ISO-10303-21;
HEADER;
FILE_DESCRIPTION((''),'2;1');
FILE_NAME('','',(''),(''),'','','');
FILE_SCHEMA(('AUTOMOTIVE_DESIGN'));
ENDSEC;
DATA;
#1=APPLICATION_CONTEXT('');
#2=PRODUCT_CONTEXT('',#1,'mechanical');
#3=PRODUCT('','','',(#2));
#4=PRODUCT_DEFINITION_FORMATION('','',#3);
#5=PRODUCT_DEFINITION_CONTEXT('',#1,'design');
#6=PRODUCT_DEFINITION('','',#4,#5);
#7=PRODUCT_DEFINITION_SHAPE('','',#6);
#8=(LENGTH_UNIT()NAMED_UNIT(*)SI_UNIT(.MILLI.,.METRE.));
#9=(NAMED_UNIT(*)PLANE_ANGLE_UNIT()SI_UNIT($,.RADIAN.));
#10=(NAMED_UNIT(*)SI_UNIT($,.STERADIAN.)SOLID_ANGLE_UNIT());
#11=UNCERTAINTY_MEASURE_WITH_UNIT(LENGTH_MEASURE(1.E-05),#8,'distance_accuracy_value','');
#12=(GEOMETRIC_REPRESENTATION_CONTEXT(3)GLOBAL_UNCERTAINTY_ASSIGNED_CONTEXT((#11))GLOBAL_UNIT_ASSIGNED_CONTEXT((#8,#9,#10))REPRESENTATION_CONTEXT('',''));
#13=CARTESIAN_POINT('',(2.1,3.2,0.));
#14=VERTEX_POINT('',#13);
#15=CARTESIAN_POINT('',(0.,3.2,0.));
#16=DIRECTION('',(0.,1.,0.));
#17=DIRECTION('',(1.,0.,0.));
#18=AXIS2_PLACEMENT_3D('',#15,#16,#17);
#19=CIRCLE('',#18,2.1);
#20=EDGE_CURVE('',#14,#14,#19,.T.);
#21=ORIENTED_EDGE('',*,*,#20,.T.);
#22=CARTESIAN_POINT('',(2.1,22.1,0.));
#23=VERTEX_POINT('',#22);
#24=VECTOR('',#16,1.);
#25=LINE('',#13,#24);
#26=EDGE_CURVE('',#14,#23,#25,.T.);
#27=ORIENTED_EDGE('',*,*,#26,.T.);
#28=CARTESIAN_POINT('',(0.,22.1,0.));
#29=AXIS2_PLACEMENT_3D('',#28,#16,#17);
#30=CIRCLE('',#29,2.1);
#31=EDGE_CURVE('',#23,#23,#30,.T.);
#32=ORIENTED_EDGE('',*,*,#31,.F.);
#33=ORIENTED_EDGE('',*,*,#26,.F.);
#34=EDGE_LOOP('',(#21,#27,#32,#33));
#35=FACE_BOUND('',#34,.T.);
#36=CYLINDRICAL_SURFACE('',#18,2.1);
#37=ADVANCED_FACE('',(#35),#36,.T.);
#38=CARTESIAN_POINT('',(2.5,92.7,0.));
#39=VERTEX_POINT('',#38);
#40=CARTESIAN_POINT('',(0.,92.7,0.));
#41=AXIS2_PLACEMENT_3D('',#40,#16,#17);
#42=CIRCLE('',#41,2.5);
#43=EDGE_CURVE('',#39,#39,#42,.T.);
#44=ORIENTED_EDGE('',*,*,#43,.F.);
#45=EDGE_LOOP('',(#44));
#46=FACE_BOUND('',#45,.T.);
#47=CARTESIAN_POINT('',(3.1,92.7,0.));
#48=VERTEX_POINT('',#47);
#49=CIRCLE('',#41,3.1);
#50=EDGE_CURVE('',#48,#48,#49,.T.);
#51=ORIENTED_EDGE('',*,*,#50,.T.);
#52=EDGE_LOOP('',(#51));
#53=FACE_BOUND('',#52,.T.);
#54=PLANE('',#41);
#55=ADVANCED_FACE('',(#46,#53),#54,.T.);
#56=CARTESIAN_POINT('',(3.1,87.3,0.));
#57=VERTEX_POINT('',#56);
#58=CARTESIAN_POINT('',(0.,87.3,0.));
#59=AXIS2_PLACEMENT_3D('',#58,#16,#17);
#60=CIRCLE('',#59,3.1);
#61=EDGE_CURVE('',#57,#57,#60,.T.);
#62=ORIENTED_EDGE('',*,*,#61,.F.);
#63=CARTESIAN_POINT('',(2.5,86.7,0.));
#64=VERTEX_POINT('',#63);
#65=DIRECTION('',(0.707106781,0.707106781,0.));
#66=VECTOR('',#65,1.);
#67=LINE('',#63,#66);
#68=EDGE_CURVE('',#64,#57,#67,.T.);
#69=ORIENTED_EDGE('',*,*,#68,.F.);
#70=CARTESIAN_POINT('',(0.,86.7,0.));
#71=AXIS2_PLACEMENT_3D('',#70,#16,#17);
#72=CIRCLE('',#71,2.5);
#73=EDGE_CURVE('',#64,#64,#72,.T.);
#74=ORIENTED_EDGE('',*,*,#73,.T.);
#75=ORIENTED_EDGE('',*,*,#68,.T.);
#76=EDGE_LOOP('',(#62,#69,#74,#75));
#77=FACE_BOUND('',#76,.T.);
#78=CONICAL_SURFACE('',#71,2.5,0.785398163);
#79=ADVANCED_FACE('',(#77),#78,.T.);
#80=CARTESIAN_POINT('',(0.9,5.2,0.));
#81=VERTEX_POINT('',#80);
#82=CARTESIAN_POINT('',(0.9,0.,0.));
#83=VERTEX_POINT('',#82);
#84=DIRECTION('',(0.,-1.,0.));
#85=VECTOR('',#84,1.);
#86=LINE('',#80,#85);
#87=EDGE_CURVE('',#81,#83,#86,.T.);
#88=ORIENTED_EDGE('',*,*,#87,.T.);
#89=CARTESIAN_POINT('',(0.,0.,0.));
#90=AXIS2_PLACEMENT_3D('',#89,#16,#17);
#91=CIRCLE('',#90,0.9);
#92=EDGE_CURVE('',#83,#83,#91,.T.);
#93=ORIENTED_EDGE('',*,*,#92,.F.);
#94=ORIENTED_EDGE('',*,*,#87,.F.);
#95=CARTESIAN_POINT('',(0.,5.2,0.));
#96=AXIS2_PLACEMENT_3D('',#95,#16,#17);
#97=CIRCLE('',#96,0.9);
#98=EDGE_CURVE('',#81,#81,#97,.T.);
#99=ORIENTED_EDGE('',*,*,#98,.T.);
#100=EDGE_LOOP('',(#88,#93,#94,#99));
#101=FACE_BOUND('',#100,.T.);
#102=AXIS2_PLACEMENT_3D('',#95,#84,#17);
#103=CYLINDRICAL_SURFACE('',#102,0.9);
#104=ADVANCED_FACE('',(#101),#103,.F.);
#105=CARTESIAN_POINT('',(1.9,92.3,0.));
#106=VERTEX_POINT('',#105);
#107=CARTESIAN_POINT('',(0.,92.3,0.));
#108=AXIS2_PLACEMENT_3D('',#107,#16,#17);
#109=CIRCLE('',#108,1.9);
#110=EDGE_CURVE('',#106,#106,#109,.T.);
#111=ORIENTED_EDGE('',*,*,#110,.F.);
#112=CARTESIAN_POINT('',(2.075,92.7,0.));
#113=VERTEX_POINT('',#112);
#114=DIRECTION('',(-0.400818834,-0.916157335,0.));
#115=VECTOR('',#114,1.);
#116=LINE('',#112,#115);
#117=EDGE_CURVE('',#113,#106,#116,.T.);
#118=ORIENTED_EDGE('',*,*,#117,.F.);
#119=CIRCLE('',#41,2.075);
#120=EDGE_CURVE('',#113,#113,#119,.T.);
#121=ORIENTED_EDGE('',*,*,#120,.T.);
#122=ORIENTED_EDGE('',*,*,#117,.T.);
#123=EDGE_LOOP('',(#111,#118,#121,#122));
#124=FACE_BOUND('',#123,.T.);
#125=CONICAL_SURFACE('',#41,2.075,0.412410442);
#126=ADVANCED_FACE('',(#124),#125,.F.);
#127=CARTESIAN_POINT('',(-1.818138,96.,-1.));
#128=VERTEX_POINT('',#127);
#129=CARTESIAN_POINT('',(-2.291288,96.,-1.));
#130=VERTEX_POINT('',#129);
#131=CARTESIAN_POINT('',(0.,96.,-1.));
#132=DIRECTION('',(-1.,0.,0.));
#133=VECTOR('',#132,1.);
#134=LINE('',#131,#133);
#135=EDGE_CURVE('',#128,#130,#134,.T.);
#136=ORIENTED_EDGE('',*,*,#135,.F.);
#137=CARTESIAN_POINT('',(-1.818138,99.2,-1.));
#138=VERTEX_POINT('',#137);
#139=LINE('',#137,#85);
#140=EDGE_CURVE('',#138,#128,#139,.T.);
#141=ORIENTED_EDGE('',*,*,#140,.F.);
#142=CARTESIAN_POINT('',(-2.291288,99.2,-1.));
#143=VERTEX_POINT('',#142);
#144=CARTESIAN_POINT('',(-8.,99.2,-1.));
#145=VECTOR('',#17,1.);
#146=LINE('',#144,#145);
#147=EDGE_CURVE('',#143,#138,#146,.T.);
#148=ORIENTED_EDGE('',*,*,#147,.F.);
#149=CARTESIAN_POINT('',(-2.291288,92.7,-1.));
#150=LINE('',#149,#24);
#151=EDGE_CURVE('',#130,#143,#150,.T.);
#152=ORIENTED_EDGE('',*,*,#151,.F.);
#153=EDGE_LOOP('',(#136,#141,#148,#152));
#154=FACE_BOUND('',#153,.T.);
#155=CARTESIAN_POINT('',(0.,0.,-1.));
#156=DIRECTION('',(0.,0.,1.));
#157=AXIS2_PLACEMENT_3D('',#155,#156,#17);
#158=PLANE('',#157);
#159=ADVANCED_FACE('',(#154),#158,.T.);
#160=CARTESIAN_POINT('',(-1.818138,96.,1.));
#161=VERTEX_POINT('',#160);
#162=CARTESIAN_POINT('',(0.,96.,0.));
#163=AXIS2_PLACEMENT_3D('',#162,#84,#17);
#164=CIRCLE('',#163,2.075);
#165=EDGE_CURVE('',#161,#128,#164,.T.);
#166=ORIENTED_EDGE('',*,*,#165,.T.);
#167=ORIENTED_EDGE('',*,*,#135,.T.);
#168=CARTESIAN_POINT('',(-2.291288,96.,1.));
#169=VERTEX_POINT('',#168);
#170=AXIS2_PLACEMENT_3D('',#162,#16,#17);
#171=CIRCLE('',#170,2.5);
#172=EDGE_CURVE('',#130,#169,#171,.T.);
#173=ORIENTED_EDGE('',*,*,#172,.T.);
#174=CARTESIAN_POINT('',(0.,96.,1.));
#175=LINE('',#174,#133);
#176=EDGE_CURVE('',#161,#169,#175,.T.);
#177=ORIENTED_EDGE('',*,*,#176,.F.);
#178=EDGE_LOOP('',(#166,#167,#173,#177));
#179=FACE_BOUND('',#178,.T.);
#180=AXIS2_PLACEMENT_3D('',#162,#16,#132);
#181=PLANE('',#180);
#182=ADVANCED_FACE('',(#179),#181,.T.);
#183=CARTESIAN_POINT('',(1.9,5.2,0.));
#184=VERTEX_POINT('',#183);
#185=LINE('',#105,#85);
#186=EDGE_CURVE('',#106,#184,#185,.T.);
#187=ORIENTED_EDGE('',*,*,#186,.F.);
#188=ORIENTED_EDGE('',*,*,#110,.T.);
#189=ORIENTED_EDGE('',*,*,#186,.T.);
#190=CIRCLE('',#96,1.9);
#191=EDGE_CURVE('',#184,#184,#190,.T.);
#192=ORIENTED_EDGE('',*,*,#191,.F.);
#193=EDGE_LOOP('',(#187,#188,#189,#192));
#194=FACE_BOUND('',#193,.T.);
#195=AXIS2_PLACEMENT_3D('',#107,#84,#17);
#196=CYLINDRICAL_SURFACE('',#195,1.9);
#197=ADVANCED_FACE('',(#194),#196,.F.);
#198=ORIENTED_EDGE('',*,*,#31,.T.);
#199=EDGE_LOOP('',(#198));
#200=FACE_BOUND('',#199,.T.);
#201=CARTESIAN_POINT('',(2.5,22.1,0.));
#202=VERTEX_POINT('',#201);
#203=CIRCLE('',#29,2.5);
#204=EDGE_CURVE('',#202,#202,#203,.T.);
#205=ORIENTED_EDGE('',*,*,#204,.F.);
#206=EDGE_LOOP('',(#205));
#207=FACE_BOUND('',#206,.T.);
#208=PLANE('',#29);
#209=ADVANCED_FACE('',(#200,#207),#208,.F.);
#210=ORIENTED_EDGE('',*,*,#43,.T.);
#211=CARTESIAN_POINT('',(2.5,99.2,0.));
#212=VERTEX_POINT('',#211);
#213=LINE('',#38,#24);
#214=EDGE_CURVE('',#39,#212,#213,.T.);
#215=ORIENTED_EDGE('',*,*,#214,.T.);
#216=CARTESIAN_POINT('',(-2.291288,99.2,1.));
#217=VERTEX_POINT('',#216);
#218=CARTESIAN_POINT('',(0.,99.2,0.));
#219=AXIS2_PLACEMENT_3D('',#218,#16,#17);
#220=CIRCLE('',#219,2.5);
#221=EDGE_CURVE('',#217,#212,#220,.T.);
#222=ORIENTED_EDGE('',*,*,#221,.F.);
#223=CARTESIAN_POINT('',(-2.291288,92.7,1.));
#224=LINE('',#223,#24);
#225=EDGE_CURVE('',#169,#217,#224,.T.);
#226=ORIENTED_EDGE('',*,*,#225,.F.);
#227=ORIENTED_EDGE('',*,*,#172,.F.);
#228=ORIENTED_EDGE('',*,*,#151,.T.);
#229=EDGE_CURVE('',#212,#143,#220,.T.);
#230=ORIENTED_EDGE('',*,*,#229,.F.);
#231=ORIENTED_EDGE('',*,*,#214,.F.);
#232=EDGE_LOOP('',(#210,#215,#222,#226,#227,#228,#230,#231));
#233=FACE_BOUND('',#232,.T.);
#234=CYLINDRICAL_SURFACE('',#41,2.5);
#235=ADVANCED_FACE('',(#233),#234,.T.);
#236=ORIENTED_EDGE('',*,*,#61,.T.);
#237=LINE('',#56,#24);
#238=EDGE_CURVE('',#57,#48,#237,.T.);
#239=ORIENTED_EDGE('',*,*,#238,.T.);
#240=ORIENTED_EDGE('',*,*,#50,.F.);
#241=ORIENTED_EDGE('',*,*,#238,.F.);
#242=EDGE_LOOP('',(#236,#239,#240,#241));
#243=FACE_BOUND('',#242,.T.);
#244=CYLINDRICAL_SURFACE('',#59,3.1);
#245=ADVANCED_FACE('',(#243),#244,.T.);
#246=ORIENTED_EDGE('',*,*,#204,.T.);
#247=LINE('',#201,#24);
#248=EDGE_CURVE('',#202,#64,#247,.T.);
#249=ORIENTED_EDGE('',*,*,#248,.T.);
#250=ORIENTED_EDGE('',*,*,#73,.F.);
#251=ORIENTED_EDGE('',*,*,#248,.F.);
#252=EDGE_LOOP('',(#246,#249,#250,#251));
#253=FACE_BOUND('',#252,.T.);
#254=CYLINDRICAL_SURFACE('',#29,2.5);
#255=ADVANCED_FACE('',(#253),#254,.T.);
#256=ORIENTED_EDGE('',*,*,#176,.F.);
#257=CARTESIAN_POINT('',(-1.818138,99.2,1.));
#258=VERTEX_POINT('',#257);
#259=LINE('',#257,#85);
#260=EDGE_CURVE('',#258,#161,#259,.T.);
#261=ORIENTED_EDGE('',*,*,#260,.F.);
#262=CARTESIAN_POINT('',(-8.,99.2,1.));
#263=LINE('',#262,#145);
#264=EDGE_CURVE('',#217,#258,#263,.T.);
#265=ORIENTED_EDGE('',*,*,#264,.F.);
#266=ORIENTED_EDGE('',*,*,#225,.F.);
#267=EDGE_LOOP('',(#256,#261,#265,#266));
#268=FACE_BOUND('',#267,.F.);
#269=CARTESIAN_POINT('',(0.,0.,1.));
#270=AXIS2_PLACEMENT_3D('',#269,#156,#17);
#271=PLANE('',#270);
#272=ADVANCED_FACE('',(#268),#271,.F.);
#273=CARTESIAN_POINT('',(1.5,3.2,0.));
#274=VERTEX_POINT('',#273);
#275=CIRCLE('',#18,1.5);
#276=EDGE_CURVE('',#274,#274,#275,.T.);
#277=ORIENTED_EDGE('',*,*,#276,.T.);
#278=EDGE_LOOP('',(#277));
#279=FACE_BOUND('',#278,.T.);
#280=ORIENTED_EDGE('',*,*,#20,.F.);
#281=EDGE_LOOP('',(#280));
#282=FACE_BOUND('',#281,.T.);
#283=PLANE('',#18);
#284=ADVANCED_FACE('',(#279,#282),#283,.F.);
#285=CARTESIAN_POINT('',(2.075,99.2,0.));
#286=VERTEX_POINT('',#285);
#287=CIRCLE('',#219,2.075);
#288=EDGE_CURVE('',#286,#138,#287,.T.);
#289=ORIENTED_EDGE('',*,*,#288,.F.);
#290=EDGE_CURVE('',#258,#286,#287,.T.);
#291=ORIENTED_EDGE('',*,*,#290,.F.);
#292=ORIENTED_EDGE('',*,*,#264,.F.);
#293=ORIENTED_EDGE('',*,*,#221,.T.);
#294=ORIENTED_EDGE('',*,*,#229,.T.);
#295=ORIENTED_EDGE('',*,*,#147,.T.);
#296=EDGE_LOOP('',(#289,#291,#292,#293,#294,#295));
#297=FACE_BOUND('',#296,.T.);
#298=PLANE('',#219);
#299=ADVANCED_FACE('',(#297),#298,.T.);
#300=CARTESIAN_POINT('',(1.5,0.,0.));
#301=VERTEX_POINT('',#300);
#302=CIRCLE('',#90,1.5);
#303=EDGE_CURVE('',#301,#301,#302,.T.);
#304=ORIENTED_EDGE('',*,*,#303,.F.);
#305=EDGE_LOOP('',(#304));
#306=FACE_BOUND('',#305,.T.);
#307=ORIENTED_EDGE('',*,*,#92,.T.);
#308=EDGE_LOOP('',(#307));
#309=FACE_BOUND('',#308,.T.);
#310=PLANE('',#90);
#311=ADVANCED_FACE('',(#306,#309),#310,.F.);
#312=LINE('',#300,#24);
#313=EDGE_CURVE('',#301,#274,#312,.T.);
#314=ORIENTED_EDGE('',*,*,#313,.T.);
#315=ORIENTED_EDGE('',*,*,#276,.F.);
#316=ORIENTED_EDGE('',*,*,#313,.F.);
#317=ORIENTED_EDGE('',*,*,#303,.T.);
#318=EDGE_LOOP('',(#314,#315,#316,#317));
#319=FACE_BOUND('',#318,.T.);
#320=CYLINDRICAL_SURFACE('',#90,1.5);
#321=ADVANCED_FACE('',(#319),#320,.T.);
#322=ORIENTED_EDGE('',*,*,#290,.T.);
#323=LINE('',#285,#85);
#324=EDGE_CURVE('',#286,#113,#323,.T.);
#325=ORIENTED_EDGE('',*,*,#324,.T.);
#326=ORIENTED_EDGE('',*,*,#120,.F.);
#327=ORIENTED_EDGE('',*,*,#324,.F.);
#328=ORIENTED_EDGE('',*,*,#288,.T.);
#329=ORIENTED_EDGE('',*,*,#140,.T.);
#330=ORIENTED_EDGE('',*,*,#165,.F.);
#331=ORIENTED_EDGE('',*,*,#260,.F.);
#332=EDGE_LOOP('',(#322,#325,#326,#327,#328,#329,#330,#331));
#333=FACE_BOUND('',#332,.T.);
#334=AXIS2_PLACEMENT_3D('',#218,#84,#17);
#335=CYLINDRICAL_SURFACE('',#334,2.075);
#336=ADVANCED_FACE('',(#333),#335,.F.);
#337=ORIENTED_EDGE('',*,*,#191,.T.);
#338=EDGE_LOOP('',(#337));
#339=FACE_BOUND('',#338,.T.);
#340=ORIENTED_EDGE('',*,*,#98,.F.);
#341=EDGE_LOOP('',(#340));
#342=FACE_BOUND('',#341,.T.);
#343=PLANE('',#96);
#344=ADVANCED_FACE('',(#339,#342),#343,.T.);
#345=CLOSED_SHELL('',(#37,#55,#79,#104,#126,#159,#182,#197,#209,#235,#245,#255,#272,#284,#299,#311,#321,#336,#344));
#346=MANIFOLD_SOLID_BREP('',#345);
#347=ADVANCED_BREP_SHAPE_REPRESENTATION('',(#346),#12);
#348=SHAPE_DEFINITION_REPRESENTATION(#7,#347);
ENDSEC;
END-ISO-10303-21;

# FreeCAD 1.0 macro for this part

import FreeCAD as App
import Part
import Sketcher
from FreeCAD import Vector
Q = App.Units.Quantity

doc = App.newDocument("Part")
body = doc.addObject("PartDesign::Body", "Body")

# Sketch on XY plane
sketch1 = body.newObject("Sketcher::SketchObject", "Sketch")
sketch1.AttachmentSupport = (doc.getObject("XY_Plane"), [""])
sketch1.MapMode = "FlatFace"
sketch1.addGeometry([
    Part.LineSegment(Vector(0.9, 5.2, 0), Vector(0.9, 0, 0)),  # 0
    Part.LineSegment(Vector(0.9, 0, 0), Vector(1.5, 0, 0)),  # 1
    Part.LineSegment(Vector(1.5, 0, 0), Vector(1.5, 3.2, 0)),  # 2
    Part.LineSegment(Vector(1.5, 3.2, 0), Vector(2.1, 3.2, 0)),  # 3
    Part.LineSegment(Vector(2.1, 3.2, 0), Vector(2.1, 22.1, 0)),  # 4
    Part.LineSegment(Vector(2.1, 22.1, 0), Vector(2.5, 22.1, 0)),  # 5
    Part.LineSegment(Vector(2.5, 22.1, 0), Vector(2.5, 86.7, 0)),  # 6
    Part.LineSegment(Vector(2.5, 86.7, 0), Vector(3.1, 87.3, 0)),  # 7
    Part.LineSegment(Vector(3.1, 87.3, 0), Vector(3.1, 92.7, 0)),  # 8
    Part.LineSegment(Vector(3.1, 92.7, 0), Vector(2.5, 92.7, 0)),  # 9
    Part.LineSegment(Vector(2.5, 92.7, 0), Vector(2.5, 99.2, 0)),  # 10
    Part.LineSegment(Vector(2.5, 99.2, 0), Vector(2.08, 99.2, 0)),  # 11
    Part.LineSegment(Vector(2.08, 99.2, 0), Vector(2.08, 92.7, 0)),  # 12
    Part.LineSegment(Vector(2.08, 92.7, 0), Vector(1.9, 92.3, 0)),  # 13
    Part.LineSegment(Vector(1.9, 92.3, 0), Vector(1.9, 5.2, 0)),  # 14
    Part.LineSegment(Vector(1.9, 5.2, 0), Vector(0.9, 5.2, 0)),  # 15
], False)
sketch1.addConstraint([
    Sketcher.Constraint("Coincident", 0, 2, 1, 1),
    Sketcher.Constraint("Coincident", 1, 2, 2, 1),
    Sketcher.Constraint("Coincident", 2, 2, 3, 1),
    Sketcher.Constraint("Coincident", 3, 2, 4, 1),
    Sketcher.Constraint("Coincident", 4, 2, 5, 1),
    Sketcher.Constraint("Coincident", 5, 2, 6, 1),
    Sketcher.Constraint("Coincident", 6, 2, 7, 1),
    Sketcher.Constraint("Coincident", 7, 2, 8, 1),
    Sketcher.Constraint("Coincident", 8, 2, 9, 1),
    Sketcher.Constraint("Coincident", 9, 2, 10, 1),
    Sketcher.Constraint("Coincident", 10, 2, 11, 1),
    Sketcher.Constraint("Coincident", 11, 2, 12, 1),
    Sketcher.Constraint("Coincident", 12, 2, 13, 1),
    Sketcher.Constraint("Coincident", 13, 2, 14, 1),
    Sketcher.Constraint("Coincident", 14, 2, 15, 1),
    Sketcher.Constraint("Coincident", 15, 2, 0, 1),
    Sketcher.Constraint("Vertical", 0),
    Sketcher.Constraint("Horizontal", 1),
    Sketcher.Constraint("Vertical", 2),
    Sketcher.Constraint("Horizontal", 3),
    Sketcher.Constraint("Vertical", 4),
    Sketcher.Constraint("Horizontal", 5),
    Sketcher.Constraint("Vertical", 6),
    Sketcher.Constraint("Vertical", 8),
    Sketcher.Constraint("Horizontal", 9),
    Sketcher.Constraint("Vertical", 10),
    Sketcher.Constraint("Horizontal", 11),
    Sketcher.Constraint("Vertical", 12),
    Sketcher.Constraint("Vertical", 14),
    Sketcher.Constraint("Horizontal", 15),
    Sketcher.Constraint("PointOnObject", 0, 2, -1),
    Sketcher.Constraint("Horizontal", 9, 2, 12, 2),
    Sketcher.Constraint("Vertical", 6, 2, 9, 2),
    Sketcher.Constraint("Equal", 1, 3),
    Sketcher.Constraint("Equal", 3, 9),
    Sketcher.Constraint("Angle", 7, Q("45 deg")),
    Sketcher.Constraint("DistanceY", 0, 2, 0, 1, 5.2),
    Sketcher.Constraint("DistanceY", 2, 1, 2, 2, 3.2),
    Sketcher.Constraint("DistanceY", 7, 2, 13, 2, 5.0),
    Sketcher.Constraint("DistanceY", -1, 1, 4, 2, 22.1),
    Sketcher.Constraint("DistanceY", -1, 1, 6, 2, 86.7),
    Sketcher.Constraint("DistanceY", -1, 1, 8, 2, 92.7),
    Sketcher.Constraint("DistanceY", -1, 1, 10, 2, 99.2),
    Sketcher.Constraint("DistanceY", -1, 1, 13, 2, 92.3),
    Sketcher.Constraint("DistanceX", 15, 2, 15, 1, 1.0),
    Sketcher.Constraint("DistanceX", 5, 1, 5, 2, 0.4),
    Sketcher.Constraint("DistanceX", -1, 1, 0, 2, 0.9),
    Sketcher.Constraint("Angle", 13, Q("-113.6294 deg")),
])
revolution = body.newObject("PartDesign::Revolution", "Revolution")
revolution.Profile = sketch1
revolution.ReferenceAxis = (sketch1, ["V_Axis"])
revolution.Angle = 360

# Sketch on XY plane
sketch2 = body.newObject("Sketcher::SketchObject", "Sketch001")
sketch2.AttachmentSupport = (doc.getObject("XY_Plane"), [""])
sketch2.MapMode = "FlatFace"
sketch2.addGeometry([
    Part.LineSegment(Vector(-8, 96, 0), Vector(0, 96, 0)),
    Part.LineSegment(Vector(0, 96, 0), Vector(0, 99.2, 0)),
    Part.LineSegment(Vector(0, 99.2, 0), Vector(-8, 99.2, 0)),
    Part.LineSegment(Vector(-8, 99.2, 0), Vector(-8, 96, 0)),
], False)
sketch2.addConstraint([
    Sketcher.Constraint("Coincident", 0, 2, 1, 1),
    Sketcher.Constraint("Coincident", 1, 2, 2, 1),
    Sketcher.Constraint("Coincident", 2, 2, 3, 1),
    Sketcher.Constraint("Coincident", 3, 2, 0, 1),
    Sketcher.Constraint("Horizontal", 0),
    Sketcher.Constraint("Vertical", 1),
    Sketcher.Constraint("Horizontal", 2),
    Sketcher.Constraint("Vertical", 3),
    Sketcher.Constraint("PointOnObject", 0, 2, -2),
    Sketcher.Constraint("DistanceX", 0, 1, 0, 2, 8.0),
    Sketcher.Constraint("DistanceY", -1, 1, 0, 2, 96.0),
    Sketcher.Constraint("DistanceY", 1, 1, 1, 2, 3.2),
])
pocket1 = body.newObject("PartDesign::Pocket", "Pocket")
pocket1.Profile = sketch2
pocket1.Length = 2
pocket1.Midplane = True

doc.recompute()
